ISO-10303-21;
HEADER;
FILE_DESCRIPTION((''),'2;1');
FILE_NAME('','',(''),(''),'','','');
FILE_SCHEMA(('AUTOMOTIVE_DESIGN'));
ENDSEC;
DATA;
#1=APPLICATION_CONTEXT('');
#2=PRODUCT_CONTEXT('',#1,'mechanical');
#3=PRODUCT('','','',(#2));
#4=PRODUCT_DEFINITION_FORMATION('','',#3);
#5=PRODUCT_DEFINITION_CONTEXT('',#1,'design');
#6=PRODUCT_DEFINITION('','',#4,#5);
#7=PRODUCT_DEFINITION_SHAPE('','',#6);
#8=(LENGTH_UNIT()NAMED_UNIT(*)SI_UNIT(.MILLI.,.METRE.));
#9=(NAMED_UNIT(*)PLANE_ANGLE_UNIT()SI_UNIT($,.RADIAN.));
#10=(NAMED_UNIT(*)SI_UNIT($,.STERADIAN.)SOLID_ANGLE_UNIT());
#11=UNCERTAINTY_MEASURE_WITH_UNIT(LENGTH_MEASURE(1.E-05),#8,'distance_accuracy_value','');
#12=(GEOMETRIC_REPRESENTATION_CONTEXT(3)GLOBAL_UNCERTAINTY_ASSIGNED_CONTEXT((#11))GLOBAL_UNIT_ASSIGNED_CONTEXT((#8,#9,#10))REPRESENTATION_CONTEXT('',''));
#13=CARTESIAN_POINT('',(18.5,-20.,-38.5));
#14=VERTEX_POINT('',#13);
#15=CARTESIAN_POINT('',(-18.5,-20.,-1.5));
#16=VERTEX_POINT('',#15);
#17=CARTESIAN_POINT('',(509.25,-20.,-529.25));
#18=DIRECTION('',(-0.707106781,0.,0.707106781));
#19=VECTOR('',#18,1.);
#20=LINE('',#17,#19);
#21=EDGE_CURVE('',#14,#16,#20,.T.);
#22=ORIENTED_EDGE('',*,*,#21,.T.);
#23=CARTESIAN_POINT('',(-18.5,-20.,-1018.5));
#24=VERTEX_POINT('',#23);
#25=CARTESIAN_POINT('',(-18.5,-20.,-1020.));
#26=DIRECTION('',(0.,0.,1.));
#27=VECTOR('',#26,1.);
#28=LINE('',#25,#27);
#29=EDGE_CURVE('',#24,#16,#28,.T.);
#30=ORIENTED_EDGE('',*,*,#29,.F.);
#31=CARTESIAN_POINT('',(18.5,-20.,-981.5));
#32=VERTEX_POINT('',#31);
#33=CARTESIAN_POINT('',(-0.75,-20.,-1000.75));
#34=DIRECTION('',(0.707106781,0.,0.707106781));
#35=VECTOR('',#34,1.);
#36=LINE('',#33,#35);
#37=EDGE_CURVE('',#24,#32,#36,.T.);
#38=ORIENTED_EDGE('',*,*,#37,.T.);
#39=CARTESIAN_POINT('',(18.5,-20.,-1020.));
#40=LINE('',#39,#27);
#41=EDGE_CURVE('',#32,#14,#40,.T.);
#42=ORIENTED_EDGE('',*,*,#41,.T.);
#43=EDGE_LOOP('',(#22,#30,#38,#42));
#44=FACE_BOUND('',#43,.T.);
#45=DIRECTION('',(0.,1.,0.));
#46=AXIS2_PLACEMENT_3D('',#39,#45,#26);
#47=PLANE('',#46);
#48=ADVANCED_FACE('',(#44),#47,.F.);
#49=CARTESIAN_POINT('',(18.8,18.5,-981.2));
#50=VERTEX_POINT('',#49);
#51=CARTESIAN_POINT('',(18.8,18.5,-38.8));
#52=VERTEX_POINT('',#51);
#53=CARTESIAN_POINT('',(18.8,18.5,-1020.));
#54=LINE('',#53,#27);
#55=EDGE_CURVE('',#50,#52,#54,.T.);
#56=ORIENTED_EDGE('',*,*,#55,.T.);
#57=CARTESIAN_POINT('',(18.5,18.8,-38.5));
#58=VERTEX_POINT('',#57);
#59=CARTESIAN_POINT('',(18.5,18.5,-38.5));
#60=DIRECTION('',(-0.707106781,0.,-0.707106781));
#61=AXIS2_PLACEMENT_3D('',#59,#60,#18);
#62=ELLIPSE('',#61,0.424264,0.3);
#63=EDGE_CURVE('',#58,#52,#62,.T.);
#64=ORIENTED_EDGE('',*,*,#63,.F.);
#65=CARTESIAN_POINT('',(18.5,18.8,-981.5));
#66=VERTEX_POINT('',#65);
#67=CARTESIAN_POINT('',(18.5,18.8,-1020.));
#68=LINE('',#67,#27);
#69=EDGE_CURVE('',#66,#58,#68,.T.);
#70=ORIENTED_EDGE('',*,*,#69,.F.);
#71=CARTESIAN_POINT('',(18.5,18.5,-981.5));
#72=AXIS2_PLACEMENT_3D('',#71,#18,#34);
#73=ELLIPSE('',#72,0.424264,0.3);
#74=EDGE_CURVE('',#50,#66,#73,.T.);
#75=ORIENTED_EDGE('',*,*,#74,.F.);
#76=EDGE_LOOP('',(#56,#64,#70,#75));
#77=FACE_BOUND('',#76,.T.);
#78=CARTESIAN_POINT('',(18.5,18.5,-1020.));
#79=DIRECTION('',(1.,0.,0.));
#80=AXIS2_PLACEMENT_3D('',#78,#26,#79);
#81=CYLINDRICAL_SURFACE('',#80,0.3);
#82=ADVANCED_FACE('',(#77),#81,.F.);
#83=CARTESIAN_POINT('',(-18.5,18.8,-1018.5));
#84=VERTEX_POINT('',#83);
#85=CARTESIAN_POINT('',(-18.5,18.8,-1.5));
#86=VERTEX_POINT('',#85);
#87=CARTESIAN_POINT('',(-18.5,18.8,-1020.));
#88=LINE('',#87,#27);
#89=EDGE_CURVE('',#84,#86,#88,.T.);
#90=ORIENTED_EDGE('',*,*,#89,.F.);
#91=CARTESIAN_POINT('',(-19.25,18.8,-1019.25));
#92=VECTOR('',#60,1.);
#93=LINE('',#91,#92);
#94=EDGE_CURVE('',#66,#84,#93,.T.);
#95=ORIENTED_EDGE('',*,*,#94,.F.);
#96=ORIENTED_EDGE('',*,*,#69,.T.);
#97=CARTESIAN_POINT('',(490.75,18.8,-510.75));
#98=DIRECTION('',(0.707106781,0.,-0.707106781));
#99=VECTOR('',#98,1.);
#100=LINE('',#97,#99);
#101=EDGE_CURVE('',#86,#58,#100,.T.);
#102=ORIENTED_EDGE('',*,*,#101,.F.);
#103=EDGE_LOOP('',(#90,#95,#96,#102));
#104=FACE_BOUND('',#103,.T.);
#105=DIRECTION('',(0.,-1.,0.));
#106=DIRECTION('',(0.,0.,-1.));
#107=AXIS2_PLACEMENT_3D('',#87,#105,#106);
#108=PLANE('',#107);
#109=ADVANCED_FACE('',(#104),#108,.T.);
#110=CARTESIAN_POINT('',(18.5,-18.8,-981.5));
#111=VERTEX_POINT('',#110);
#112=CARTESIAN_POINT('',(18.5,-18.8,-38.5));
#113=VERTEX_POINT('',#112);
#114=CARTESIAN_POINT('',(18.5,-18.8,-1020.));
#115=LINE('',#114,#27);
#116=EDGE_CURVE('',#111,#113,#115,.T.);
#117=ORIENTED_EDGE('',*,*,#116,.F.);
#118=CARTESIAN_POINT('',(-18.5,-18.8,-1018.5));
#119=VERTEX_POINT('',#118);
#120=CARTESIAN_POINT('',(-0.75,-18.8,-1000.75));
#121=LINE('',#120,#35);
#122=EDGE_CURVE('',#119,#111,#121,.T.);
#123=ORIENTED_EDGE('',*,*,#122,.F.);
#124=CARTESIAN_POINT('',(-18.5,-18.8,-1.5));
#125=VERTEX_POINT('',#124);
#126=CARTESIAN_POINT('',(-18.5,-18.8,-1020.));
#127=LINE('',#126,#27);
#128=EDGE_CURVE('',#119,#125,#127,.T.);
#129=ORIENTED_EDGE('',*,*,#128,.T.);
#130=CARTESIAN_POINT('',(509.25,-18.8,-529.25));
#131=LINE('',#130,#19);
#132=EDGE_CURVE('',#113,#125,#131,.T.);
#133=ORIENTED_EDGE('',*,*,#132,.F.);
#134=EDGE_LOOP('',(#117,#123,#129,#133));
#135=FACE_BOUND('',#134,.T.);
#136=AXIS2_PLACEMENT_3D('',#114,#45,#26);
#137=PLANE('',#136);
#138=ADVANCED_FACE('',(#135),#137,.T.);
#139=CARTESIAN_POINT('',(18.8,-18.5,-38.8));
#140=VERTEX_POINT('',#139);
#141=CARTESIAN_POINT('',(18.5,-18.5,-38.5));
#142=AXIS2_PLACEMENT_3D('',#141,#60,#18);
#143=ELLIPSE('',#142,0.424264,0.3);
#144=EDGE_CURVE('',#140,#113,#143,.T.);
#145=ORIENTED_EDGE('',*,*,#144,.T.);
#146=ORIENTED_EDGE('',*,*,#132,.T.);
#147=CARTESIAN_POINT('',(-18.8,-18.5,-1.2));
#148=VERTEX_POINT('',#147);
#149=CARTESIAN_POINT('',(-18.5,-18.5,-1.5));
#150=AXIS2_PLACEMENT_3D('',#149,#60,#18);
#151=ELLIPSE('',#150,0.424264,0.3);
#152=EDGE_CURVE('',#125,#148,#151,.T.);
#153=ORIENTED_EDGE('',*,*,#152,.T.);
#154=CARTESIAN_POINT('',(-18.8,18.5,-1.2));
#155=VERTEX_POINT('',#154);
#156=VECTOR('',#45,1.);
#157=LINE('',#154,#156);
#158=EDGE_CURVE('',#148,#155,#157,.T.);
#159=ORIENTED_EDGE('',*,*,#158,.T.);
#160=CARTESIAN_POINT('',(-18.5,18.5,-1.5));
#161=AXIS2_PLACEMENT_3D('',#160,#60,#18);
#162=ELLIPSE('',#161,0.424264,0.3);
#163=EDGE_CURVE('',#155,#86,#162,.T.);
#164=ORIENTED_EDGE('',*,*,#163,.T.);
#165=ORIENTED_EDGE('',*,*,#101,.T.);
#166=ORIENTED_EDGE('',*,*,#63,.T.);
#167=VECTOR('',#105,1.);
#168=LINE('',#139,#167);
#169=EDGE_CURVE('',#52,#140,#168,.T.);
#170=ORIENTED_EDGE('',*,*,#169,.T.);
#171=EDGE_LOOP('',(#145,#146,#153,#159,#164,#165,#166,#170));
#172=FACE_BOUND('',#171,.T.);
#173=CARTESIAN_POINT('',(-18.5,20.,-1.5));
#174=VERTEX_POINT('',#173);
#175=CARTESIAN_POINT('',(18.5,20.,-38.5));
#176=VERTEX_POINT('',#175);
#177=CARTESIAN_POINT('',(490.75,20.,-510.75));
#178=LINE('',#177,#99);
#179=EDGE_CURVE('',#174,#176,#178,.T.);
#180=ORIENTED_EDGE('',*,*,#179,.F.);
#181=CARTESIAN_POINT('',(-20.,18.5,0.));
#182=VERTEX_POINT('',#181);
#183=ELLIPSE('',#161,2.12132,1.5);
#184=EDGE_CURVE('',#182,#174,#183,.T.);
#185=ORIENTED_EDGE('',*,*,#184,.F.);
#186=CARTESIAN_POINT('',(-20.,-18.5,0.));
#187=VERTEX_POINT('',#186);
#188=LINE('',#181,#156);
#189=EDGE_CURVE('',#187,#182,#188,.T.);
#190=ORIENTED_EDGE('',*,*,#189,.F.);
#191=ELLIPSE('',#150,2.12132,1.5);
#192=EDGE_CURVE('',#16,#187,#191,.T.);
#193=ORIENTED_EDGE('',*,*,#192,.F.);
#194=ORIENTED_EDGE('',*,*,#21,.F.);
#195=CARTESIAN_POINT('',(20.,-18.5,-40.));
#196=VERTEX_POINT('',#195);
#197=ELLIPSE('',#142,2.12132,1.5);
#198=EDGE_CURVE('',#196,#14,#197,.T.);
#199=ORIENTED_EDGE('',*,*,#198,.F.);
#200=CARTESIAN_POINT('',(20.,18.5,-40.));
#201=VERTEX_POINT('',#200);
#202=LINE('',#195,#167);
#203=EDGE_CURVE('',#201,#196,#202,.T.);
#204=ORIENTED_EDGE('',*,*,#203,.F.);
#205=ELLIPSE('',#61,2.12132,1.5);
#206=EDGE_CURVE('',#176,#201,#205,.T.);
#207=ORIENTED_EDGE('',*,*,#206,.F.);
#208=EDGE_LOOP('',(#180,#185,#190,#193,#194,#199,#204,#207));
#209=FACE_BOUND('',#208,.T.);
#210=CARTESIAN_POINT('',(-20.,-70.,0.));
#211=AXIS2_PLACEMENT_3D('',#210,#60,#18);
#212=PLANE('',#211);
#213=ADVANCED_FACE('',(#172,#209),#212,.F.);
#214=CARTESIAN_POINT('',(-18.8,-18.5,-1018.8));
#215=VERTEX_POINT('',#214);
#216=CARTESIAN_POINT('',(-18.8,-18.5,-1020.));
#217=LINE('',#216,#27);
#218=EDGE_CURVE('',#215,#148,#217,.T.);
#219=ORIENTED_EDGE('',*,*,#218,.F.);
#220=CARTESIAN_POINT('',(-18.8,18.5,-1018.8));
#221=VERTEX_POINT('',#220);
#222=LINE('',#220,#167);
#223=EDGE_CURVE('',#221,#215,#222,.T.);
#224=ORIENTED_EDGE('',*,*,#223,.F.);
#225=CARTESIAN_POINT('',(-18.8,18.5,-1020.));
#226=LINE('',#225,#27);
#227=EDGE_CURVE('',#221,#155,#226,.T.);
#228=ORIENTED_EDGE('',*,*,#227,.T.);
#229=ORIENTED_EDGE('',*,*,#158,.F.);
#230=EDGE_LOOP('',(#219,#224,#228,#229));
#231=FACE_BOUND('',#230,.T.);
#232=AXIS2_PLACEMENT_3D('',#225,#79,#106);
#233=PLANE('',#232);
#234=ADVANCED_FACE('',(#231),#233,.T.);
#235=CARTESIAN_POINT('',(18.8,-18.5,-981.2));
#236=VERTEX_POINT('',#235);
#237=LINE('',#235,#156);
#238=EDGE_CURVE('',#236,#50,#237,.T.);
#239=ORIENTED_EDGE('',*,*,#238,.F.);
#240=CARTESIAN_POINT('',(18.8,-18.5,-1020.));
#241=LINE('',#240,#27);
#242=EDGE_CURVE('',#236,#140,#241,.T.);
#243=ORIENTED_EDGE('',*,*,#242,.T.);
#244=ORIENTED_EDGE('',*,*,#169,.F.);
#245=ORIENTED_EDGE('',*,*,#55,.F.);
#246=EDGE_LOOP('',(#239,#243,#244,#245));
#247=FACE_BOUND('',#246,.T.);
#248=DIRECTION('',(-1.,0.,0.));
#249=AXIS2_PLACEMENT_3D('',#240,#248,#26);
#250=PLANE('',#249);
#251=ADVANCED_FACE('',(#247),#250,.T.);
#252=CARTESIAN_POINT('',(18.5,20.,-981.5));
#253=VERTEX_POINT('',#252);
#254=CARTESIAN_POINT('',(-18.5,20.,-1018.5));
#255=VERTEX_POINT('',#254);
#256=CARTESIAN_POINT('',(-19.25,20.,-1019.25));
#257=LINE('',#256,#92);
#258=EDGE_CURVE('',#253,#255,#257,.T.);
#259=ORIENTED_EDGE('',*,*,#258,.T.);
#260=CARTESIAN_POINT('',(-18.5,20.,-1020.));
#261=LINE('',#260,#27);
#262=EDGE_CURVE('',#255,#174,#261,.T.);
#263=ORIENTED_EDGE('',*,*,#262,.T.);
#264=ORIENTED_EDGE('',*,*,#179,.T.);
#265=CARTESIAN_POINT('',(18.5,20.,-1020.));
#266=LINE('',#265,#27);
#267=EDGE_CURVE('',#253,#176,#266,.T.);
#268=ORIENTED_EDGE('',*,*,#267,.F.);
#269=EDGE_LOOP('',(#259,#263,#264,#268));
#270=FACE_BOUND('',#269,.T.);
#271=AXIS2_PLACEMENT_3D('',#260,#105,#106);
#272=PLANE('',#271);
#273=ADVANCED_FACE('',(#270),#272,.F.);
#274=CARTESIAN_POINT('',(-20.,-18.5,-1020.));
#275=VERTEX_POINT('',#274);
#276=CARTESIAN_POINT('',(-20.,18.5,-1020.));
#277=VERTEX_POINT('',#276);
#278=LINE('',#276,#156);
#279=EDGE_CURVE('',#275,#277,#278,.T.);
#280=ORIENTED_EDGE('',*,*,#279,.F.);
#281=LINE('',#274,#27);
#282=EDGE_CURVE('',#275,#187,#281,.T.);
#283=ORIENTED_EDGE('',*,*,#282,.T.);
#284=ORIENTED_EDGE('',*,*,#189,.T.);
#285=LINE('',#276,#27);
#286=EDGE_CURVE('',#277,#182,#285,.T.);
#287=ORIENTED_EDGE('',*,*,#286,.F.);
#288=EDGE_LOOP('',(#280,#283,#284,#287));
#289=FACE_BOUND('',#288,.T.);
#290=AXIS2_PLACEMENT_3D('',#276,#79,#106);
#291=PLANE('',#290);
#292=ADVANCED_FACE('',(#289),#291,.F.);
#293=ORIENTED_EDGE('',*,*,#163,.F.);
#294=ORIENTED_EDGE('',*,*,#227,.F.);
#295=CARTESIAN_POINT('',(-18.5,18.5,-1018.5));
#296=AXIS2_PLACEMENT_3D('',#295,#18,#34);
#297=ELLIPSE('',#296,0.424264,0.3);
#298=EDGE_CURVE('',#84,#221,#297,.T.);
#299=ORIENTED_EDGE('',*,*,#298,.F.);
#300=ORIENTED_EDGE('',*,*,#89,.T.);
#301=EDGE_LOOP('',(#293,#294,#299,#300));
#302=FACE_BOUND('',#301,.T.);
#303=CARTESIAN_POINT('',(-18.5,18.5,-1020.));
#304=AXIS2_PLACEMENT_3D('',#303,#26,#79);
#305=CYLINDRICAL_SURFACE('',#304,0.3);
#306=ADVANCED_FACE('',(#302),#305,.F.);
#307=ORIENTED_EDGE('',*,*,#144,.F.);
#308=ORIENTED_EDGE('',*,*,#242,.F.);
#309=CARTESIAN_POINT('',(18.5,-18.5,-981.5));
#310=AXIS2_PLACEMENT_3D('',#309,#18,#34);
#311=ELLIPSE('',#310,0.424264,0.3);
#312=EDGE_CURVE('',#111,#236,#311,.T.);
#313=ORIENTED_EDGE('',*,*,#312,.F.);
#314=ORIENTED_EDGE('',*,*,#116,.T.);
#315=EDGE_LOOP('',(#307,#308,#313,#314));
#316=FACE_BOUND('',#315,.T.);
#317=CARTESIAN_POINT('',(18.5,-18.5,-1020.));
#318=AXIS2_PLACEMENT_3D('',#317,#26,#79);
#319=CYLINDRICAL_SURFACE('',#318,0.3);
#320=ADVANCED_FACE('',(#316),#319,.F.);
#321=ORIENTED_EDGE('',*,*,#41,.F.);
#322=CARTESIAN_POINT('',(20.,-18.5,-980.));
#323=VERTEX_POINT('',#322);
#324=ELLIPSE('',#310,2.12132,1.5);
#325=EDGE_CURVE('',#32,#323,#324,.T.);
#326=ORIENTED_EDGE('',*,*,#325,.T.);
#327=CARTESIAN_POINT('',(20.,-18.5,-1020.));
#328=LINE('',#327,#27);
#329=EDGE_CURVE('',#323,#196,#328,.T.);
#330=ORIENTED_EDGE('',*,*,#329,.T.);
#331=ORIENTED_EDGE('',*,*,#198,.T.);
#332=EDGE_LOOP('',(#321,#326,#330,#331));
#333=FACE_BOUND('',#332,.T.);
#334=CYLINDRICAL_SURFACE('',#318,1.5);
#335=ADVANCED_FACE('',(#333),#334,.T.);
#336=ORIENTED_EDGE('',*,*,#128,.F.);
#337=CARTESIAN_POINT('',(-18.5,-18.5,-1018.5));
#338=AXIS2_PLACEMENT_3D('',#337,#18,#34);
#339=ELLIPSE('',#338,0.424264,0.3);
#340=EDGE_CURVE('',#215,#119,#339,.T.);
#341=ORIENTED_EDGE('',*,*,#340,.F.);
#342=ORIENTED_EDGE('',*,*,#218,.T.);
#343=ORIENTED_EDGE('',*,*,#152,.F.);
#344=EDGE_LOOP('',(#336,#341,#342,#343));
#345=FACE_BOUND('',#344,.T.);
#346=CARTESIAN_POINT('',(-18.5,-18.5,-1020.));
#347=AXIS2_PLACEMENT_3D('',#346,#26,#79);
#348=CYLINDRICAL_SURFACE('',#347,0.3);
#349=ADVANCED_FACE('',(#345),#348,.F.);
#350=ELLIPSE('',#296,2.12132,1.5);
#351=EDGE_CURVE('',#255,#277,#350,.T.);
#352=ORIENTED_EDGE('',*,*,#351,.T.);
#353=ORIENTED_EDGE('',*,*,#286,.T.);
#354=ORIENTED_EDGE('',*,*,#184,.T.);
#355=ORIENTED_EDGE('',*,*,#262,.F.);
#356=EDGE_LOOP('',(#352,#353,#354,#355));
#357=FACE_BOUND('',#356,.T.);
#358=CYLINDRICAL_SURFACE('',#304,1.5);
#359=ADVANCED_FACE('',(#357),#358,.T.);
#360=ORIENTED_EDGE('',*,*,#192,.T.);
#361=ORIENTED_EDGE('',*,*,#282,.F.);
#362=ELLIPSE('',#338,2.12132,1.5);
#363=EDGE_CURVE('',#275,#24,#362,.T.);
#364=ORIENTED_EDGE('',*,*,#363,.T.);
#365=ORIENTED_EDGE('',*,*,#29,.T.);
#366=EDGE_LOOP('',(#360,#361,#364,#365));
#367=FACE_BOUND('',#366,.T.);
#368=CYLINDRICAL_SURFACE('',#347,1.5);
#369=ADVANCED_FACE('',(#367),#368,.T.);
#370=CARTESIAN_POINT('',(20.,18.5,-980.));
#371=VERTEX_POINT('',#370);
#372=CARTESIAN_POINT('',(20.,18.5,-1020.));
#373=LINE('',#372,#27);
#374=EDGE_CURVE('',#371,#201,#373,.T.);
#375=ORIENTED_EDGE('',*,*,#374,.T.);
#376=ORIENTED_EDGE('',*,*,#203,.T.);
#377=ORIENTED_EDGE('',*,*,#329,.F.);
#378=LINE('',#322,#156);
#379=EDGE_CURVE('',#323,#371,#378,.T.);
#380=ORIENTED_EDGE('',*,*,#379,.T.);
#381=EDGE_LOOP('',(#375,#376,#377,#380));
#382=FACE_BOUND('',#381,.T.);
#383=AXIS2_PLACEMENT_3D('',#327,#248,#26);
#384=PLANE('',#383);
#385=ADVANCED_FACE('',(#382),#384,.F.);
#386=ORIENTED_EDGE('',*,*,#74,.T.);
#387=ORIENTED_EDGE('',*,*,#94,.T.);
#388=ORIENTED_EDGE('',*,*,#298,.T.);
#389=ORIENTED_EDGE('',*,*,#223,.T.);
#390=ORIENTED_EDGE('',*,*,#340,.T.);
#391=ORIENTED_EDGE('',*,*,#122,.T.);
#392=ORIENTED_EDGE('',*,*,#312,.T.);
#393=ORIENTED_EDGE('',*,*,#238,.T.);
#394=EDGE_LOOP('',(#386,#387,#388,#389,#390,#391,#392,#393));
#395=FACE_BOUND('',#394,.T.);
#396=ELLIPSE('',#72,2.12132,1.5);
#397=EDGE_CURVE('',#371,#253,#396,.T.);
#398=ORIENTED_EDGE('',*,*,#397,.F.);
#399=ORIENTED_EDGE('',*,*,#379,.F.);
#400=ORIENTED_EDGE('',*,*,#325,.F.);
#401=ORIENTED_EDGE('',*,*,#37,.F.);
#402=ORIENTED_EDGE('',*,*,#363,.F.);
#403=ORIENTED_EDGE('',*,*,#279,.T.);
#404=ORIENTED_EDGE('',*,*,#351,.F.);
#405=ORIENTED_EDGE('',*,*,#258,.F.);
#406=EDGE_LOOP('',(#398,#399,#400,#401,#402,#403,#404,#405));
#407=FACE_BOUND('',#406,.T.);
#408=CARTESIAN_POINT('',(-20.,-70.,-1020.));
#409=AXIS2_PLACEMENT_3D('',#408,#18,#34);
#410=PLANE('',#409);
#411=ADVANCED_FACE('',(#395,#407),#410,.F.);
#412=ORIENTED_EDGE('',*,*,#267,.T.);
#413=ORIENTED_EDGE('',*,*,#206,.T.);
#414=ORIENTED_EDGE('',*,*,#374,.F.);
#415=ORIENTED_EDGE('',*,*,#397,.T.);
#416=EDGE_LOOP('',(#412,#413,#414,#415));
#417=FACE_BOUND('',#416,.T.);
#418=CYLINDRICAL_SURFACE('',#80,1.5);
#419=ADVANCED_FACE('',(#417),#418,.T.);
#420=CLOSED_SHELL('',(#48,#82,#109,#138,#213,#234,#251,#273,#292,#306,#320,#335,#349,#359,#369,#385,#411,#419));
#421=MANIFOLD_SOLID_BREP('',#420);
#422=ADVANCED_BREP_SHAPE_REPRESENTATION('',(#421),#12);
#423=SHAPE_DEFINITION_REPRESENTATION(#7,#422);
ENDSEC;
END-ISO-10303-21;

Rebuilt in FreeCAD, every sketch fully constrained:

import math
import FreeCAD as App
import Part
import Sketcher
Q = App.Units.Quantity


def add_polygon(sketch, points):
    """Adds a closed chain of lines whose ends are joined by coincident constraints."""
    first, n = sketch.GeometryCount, len(points)
    for a, b in zip(points, points[1:] + points[:1]):
        sketch.addGeometry(Part.LineSegment(App.Vector(*a, 0), App.Vector(*b, 0)), False)
    for i in range(n):
        sketch.addConstraint(Sketcher.Constraint("Coincident", first + i, 2, first + (i + 1) % n, 1))

doc = App.newDocument("Part")
params = doc.addObject("Spreadsheet::Sheet", "Params")
for row, (alias, value) in enumerate([
    ("sketch1_radius", "1.5 mm"),
    ("sketch1_radius2", "0.3 mm"),
    ("sketch1_width", "37 mm"),
    ("pad1_length", "1020 mm"),
    ("pocket1_length", "120 mm"),
], start=1):
    params.set(f"A{row}", alias)
    params.set(f"B{row}", "=" + value)
    params.setAlias(f"B{row}", alias)

body = doc.addObject("PartDesign::Body", "Body")

# Sketch on XY plane
sketch1 = body.newObject("Sketcher::SketchObject", "Sketch")
sketch1.AttachmentSupport = (doc.getObject("XY_Plane"), [""])
sketch1.MapMode = "FlatFace"
sketch1.addGeometry([
    Part.LineSegment(App.Vector(18.5, -20, 0), App.Vector(-18.5, -20, 0)),  # 0
    Part.ArcOfCircle(Part.Circle(App.Vector(-18.5, -18.5, 0), App.Vector(0, 0, 1), 1.5), math.radians(180), math.radians(270)),  # 1
    Part.LineSegment(App.Vector(-20, -18.5, 0), App.Vector(-20, 18.5, 0)),  # 2
    Part.ArcOfCircle(Part.Circle(App.Vector(-18.5, 18.5, 0), App.Vector(0, 0, 1), 1.5), math.radians(90), math.radians(180)),  # 3
    Part.LineSegment(App.Vector(-18.5, 20, 0), App.Vector(18.5, 20, 0)),  # 4
    Part.ArcOfCircle(Part.Circle(App.Vector(18.5, 18.5, 0), App.Vector(0, 0, 1), 1.5), math.radians(0), math.radians(90)),  # 5
    Part.LineSegment(App.Vector(20, 18.5, 0), App.Vector(20, -18.5, 0)),  # 6
    Part.ArcOfCircle(Part.Circle(App.Vector(18.5, -18.5, 0), App.Vector(0, 0, 1), 1.5), math.radians(-90), math.radians(0)),  # 7
    Part.LineSegment(App.Vector(-18.5, -18.8, 0), App.Vector(18.5, -18.8, 0)),  # 8
    Part.ArcOfCircle(Part.Circle(App.Vector(18.5, -18.5, 0), App.Vector(0, 0, 1), 0.3), math.radians(-90), math.radians(0)),  # 9
    Part.LineSegment(App.Vector(18.8, -18.5, 0), App.Vector(18.8, 18.5, 0)),  # 10
    Part.ArcOfCircle(Part.Circle(App.Vector(18.5, 18.5, 0), App.Vector(0, 0, 1), 0.3), math.radians(0), math.radians(90)),  # 11
    Part.LineSegment(App.Vector(18.5, 18.8, 0), App.Vector(-18.5, 18.8, 0)),  # 12
    Part.ArcOfCircle(Part.Circle(App.Vector(-18.5, 18.5, 0), App.Vector(0, 0, 1), 0.3), math.radians(90), math.radians(180)),  # 13
    Part.LineSegment(App.Vector(-18.8, 18.5, 0), App.Vector(-18.8, -18.5, 0)),  # 14
    Part.ArcOfCircle(Part.Circle(App.Vector(-18.5, -18.5, 0), App.Vector(0, 0, 1), 0.3), math.radians(-180), math.radians(-90)),  # 15
], False)
sketch1.addConstraint([
    Sketcher.Constraint("Tangent", 0, 2, 1, 2),
    Sketcher.Constraint("Tangent", 1, 1, 2, 1),
    Sketcher.Constraint("Tangent", 2, 2, 3, 2),
    Sketcher.Constraint("Tangent", 3, 1, 4, 1),
    Sketcher.Constraint("Tangent", 4, 2, 5, 2),
    Sketcher.Constraint("Tangent", 5, 1, 6, 1),
    Sketcher.Constraint("Tangent", 6, 2, 7, 2),
    Sketcher.Constraint("Tangent", 7, 1, 0, 1),
    Sketcher.Constraint("Tangent", 8, 2, 9, 1),
    Sketcher.Constraint("Tangent", 9, 2, 10, 1),
    Sketcher.Constraint("Tangent", 10, 2, 11, 1),
    Sketcher.Constraint("Tangent", 11, 2, 12, 1),
    Sketcher.Constraint("Tangent", 12, 2, 13, 1),
    Sketcher.Constraint("Tangent", 13, 2, 14, 1),
    Sketcher.Constraint("Tangent", 14, 2, 15, 1),
    Sketcher.Constraint("Tangent", 15, 2, 8, 1),
    Sketcher.Constraint("Horizontal", 0),
    Sketcher.Constraint("Vertical", 2),
    Sketcher.Constraint("Horizontal", 4),
    Sketcher.Constraint("Vertical", 6),
    Sketcher.Constraint("Horizontal", 8),
    Sketcher.Constraint("Vertical", 10),
    Sketcher.Constraint("Horizontal", 12),
    Sketcher.Constraint("Vertical", 14),
    Sketcher.Constraint("Coincident", 9, 3, 7, 3),
    Sketcher.Constraint("Coincident", 11, 3, 5, 3),
    Sketcher.Constraint("Coincident", 13, 3, 3, 3),
    Sketcher.Constraint("Equal", 1, 3),
    Sketcher.Constraint("Equal", 3, 5),
    Sketcher.Constraint("Equal", 5, 7),
    Sketcher.Constraint("Equal", 13, 15),
    Sketcher.Constraint("Symmetric", 1, 3, 5, 3, -1, 1),
    Sketcher.Constraint("Equal", 12, 2),
    Sketcher.Constraint("Radius", 1, Q("1.5 mm")),
    Sketcher.Constraint("Radius", 9, Q("0.3 mm")),
    Sketcher.Constraint("DistanceX", 0, 2, 0, 1, Q("37 mm")),
])
sketch1.setExpression("Constraints[33]", "Params.sketch1_radius")
sketch1.setExpression("Constraints[34]", "Params.sketch1_radius2")
sketch1.setExpression("Constraints[35]", "Params.sketch1_width")
pad1 = body.newObject("PartDesign::Pad", "Pad")
pad1.Profile = sketch1
pad1.setExpression("Length", "Params.pad1_length")
pad1.Reversed = True

# Sketch on XZ plane
sketch2 = body.newObject("Sketcher::SketchObject", "Sketch001")
sketch2.AttachmentSupport = (doc.getObject("XZ_Plane"), [""])
sketch2.MapMode = "FlatFace"
sketch2.AttachmentOffset = App.Placement(App.Vector(0, 0, -50), App.Rotation())
add_polygon(sketch2, [(-20, -1020), (31, -969), (31, -1020)])  # lines 0-2
add_polygon(sketch2, [(28, -48), (-20, 0), (28, 0)])  # lines 3-5
sketch2.addConstraint([
    Sketcher.Constraint("Vertical", 1),
    Sketcher.Constraint("Horizontal", 2),
    Sketcher.Constraint("Horizontal", 4),
    Sketcher.Constraint("Vertical", 5),
    Sketcher.Constraint("PointOnObject", 3, 2, -1),
    Sketcher.Constraint("Perpendicular", 0, 3),
    Sketcher.Constraint("Vertical", 2, 2, 3, 2),
    Sketcher.Constraint("Equal", 2, 1),
    Sketcher.Constraint("DistanceY", 1, 2, -1, 1, Q("1020 mm")),
    Sketcher.Constraint("DistanceX", 2, 2, -1, 1, Q("20 mm")),
    Sketcher.Constraint("DistanceX", 2, 2, 2, 1, Q("51.245069 mm")),
    Sketcher.Constraint("DistanceX", 4, 1, 4, 2, Q("47.845949 mm")),
])
pocket1 = body.newObject("PartDesign::Pocket", "Pocket")
pocket1.Profile = sketch2
pocket1.setExpression("Length", "Params.pocket1_length")
pocket1.Reversed = True

doc.recompute()
